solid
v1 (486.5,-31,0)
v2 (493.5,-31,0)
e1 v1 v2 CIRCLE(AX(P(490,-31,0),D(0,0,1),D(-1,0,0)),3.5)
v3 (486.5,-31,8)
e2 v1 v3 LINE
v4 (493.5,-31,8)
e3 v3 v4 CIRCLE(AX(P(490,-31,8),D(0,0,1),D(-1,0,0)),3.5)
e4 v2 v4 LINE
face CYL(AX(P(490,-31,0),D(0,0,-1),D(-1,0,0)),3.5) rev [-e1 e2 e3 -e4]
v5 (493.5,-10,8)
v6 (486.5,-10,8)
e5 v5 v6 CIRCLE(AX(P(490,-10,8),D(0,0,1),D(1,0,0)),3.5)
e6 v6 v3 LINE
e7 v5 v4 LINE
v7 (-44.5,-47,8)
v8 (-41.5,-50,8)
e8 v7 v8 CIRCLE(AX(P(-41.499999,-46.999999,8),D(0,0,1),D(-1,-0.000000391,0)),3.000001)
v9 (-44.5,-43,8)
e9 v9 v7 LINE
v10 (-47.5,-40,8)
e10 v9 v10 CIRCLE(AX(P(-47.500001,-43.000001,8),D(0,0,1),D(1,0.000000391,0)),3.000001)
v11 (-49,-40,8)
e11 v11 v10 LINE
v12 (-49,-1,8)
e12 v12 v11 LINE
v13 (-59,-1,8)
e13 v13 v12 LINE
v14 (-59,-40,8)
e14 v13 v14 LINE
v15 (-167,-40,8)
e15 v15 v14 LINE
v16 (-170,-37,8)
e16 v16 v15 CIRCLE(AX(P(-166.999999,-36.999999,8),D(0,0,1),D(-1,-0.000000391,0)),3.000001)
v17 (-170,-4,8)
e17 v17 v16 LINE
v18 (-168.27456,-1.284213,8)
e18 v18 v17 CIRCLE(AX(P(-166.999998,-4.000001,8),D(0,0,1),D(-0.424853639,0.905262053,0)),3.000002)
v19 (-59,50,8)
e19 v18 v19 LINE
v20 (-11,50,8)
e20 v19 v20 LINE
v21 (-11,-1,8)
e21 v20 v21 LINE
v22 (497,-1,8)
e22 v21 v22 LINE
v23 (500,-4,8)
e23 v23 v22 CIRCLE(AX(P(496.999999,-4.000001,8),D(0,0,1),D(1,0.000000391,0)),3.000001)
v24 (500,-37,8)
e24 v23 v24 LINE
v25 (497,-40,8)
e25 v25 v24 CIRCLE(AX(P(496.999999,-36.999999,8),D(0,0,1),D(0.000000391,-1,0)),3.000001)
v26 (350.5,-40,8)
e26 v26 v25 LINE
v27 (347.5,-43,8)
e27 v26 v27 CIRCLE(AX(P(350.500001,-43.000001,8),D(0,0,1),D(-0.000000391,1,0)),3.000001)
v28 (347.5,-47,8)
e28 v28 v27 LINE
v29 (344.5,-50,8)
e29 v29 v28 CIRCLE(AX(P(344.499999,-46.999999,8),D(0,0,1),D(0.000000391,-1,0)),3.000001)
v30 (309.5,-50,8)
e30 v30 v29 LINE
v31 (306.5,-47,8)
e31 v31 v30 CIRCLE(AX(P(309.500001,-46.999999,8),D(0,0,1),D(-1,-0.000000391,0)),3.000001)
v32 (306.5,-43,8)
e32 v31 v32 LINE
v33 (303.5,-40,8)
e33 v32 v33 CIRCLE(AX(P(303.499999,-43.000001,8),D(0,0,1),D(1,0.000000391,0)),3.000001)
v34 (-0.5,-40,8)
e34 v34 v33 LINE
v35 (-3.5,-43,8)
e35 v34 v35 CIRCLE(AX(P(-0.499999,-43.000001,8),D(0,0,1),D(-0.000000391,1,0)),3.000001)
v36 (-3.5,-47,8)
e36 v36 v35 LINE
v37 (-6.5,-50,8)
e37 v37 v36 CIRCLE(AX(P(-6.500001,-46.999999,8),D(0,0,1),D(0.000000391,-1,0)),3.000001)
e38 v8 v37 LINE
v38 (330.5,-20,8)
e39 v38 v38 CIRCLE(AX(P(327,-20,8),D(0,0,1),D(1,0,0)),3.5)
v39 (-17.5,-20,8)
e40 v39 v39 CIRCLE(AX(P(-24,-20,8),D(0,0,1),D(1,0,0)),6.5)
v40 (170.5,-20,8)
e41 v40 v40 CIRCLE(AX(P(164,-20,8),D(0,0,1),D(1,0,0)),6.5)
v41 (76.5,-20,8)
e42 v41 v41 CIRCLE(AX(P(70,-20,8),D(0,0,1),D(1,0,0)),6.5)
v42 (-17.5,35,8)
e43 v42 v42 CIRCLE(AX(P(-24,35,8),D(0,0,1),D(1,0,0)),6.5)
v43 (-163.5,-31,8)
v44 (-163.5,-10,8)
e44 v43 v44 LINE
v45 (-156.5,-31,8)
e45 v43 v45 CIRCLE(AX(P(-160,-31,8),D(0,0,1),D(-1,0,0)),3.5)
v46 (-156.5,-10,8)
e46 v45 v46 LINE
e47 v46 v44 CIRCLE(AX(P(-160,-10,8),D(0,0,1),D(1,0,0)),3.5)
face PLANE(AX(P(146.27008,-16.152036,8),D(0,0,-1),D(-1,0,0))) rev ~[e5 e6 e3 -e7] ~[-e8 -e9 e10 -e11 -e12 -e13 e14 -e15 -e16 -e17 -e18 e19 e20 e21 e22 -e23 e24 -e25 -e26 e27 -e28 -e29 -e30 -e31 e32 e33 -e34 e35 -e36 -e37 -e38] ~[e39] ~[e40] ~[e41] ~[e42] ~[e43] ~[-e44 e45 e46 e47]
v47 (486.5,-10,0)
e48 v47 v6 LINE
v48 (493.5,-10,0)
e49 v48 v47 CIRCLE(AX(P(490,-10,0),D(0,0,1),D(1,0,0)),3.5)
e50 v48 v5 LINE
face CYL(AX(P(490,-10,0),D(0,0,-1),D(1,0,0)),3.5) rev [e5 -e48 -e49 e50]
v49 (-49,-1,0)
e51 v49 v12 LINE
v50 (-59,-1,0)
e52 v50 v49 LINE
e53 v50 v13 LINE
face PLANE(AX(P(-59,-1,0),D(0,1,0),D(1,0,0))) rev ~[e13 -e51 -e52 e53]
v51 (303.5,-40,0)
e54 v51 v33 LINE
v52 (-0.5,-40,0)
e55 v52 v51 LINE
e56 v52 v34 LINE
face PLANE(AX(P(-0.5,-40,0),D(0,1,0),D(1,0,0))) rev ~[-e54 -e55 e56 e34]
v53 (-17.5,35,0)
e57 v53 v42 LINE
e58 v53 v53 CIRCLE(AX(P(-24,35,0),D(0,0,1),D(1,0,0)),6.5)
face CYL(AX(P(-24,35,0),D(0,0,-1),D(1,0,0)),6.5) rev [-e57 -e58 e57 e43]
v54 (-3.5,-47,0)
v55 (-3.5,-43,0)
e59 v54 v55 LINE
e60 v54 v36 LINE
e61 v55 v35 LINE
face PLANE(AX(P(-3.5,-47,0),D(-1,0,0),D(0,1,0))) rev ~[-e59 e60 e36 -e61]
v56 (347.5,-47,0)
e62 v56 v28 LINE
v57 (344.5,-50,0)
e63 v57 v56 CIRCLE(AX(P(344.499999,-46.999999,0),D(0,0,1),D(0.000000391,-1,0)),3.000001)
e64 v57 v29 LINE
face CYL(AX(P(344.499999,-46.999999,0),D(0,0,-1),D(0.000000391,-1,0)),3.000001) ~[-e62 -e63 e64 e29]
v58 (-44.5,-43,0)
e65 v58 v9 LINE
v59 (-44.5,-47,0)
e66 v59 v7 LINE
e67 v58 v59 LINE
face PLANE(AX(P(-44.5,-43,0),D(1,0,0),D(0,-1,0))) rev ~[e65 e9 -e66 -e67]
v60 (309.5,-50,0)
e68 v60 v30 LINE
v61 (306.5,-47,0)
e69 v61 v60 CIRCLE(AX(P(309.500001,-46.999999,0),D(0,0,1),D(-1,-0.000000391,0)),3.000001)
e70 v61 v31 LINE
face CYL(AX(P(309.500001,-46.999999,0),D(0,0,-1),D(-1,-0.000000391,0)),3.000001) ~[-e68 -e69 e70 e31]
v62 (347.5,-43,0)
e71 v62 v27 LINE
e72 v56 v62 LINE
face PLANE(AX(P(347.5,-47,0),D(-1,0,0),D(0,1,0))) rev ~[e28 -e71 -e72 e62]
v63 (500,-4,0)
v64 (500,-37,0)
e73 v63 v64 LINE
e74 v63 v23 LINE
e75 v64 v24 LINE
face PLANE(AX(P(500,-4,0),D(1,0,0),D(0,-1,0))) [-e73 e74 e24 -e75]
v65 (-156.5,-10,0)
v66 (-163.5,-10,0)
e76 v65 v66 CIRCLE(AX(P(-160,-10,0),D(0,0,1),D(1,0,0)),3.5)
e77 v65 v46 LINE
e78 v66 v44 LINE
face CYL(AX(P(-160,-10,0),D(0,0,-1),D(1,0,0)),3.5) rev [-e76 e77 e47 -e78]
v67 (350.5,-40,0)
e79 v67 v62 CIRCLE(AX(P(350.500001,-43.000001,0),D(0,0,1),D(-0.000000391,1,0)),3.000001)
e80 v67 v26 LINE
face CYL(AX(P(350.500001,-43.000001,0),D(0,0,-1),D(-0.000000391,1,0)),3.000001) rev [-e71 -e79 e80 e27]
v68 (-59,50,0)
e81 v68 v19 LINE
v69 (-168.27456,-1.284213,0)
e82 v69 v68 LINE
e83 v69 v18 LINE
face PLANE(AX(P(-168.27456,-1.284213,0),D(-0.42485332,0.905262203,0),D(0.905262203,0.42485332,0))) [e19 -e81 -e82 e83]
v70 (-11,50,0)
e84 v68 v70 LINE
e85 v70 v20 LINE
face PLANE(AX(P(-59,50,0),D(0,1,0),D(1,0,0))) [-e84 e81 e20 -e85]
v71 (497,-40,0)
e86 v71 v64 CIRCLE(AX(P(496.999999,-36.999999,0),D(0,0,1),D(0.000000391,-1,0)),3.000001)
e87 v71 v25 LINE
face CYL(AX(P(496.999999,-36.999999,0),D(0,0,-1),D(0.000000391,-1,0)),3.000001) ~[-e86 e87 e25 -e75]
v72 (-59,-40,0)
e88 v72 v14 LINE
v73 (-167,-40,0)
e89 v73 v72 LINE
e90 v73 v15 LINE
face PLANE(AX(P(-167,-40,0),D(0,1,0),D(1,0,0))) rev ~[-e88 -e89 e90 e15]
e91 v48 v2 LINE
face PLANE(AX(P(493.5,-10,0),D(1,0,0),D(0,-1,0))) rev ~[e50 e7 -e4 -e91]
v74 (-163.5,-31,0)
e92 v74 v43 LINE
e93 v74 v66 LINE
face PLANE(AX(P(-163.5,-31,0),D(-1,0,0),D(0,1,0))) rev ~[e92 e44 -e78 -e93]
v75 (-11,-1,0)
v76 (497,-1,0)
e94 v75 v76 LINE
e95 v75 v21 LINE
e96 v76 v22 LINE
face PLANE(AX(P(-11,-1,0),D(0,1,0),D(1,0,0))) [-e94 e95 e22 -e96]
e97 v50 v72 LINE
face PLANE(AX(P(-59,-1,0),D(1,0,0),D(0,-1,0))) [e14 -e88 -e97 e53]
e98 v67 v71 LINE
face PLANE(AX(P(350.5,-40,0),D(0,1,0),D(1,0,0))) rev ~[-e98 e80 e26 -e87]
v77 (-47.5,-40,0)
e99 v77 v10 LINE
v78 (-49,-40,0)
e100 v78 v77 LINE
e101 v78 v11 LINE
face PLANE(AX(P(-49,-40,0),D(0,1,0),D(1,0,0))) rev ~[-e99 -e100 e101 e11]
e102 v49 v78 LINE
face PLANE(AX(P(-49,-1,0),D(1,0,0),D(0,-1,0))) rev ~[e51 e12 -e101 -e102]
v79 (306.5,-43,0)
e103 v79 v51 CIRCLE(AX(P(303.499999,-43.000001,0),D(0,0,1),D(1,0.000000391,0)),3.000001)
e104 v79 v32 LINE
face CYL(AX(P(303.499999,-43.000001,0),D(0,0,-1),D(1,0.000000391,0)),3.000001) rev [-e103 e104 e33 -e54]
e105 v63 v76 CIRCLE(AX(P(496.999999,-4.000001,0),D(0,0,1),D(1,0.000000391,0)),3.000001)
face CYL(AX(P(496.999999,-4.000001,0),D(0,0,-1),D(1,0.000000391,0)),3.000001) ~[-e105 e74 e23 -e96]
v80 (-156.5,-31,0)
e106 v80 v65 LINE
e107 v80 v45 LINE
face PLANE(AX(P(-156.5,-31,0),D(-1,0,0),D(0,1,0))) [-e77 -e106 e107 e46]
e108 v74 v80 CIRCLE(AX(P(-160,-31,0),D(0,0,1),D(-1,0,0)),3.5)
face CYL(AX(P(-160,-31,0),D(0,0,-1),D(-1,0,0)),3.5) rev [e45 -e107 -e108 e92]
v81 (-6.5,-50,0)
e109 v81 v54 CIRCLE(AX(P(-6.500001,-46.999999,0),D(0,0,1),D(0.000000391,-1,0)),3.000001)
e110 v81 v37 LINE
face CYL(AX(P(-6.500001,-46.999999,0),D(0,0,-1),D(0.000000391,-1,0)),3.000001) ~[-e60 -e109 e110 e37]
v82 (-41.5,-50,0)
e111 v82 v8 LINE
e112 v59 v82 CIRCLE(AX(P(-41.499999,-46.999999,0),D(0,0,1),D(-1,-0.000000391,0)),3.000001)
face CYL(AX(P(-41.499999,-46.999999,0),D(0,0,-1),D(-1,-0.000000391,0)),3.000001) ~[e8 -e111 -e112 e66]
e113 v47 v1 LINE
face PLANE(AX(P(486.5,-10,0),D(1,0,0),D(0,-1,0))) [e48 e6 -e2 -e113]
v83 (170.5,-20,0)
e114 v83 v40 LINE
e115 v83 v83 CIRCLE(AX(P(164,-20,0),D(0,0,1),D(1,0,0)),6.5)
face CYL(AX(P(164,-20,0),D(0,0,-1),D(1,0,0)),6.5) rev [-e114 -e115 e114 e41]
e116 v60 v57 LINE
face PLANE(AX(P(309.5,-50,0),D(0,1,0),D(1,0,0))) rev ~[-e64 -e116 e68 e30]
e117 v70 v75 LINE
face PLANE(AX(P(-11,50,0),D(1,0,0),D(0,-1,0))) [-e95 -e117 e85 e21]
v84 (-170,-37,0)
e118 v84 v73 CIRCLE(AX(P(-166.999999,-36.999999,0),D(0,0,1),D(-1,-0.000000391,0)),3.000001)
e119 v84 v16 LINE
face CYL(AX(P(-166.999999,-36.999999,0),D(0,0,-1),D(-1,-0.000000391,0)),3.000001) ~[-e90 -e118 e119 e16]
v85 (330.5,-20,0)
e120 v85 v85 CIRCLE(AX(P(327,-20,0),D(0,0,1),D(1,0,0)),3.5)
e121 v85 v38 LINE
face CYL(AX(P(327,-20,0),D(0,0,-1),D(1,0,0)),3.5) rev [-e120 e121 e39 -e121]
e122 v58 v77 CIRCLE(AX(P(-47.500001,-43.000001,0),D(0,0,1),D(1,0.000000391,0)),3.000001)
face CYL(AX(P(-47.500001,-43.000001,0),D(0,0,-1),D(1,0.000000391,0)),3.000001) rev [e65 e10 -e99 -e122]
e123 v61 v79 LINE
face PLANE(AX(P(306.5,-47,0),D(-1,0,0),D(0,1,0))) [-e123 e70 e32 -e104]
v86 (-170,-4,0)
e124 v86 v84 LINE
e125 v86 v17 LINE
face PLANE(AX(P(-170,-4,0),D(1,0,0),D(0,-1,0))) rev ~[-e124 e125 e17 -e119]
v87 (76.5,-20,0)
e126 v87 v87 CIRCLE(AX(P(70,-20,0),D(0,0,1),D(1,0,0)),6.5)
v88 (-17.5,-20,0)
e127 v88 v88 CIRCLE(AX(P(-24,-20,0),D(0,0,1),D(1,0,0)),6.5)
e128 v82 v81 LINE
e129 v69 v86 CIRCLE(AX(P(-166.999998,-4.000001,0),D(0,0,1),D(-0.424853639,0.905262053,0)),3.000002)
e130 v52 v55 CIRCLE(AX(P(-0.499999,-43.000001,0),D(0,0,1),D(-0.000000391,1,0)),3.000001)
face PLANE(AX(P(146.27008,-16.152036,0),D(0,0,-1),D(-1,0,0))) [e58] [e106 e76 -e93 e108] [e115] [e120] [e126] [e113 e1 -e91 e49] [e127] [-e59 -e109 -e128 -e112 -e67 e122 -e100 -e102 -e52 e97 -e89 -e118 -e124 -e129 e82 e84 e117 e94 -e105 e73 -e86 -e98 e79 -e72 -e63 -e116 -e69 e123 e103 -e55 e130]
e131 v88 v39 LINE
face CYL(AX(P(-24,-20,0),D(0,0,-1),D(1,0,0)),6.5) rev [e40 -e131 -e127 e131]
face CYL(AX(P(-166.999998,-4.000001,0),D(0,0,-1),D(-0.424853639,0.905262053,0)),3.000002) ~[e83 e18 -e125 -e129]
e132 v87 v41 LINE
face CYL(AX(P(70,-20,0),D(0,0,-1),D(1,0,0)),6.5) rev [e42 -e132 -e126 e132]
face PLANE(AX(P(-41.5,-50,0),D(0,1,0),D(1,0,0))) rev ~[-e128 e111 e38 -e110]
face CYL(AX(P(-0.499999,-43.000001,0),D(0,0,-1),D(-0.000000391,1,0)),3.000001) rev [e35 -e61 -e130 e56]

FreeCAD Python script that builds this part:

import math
import FreeCAD as App
import Part
import Sketcher
from FreeCAD import Vector

doc = App.newDocument("Part")
body = doc.addObject("PartDesign::Body", "Body")

# Sketch on XY plane
sketch1 = body.newObject("Sketcher::SketchObject", "Sketch")
sketch1.AttachmentSupport = (doc.getObject("XY_Plane"), [""])
sketch1.MapMode = "FlatFace"
sketch1.addGeometry([
    Part.LineSegment(Vector(-11, -1, 0), Vector(-11, 50, 0)),  # 0
    Part.LineSegment(Vector(-11, 50, 0), Vector(-59, 50, 0)),  # 1
    Part.LineSegment(Vector(-59, 50, 0), Vector(-168.3, -1.3, 0)),  # 2
    Part.ArcOfCircle(Part.Circle(Vector(-167, -4, 0), Vector(0, 0, 1), 3), math.radians(115), math.radians(180)),  # 3
    Part.LineSegment(Vector(-170, -4, 0), Vector(-170, -37, 0)),  # 4
    Part.ArcOfCircle(Part.Circle(Vector(-167, -37, 0), Vector(0, 0, 1), 3), math.radians(-180), math.radians(-90)),  # 5
    Part.LineSegment(Vector(-167, -40, 0), Vector(-59, -40, 0)),  # 6
    Part.LineSegment(Vector(-59, -40, 0), Vector(-59, -1, 0)),  # 7
    Part.LineSegment(Vector(-59, -1, 0), Vector(-49, -1, 0)),  # 8
    Part.LineSegment(Vector(-49, -1, 0), Vector(-49, -40, 0)),  # 9
    Part.LineSegment(Vector(-49, -40, 0), Vector(-47.5, -40, 0)),  # 10
    Part.ArcOfCircle(Part.Circle(Vector(-47.5, -43, 0), Vector(0, 0, 1), 3), math.radians(0), math.radians(90)),  # 11
    Part.LineSegment(Vector(-44.5, -43, 0), Vector(-44.5, -47, 0)),  # 12
    Part.ArcOfCircle(Part.Circle(Vector(-41.5, -47, 0), Vector(0, 0, 1), 3), math.radians(-180), math.radians(-90)),  # 13
    Part.LineSegment(Vector(-41.5, -50, 0), Vector(-6.5, -50, 0)),  # 14
    Part.ArcOfCircle(Part.Circle(Vector(-6.5, -47, 0), Vector(0, 0, 1), 3), math.radians(-90), math.radians(0)),  # 15
    Part.LineSegment(Vector(-3.5, -47, 0), Vector(-3.5, -43, 0)),  # 16
    Part.ArcOfCircle(Part.Circle(Vector(-0.5, -43, 0), Vector(0, 0, 1), 3), math.radians(90), math.radians(180)),  # 17
    Part.LineSegment(Vector(-0.5, -40, 0), Vector(303.5, -40, 0)),  # 18
    Part.ArcOfCircle(Part.Circle(Vector(303.5, -43, 0), Vector(0, 0, 1), 3), math.radians(0), math.radians(90)),  # 19
    Part.LineSegment(Vector(306.5, -43, 0), Vector(306.5, -47, 0)),  # 20
    Part.ArcOfCircle(Part.Circle(Vector(309.5, -47, 0), Vector(0, 0, 1), 3), math.radians(-180), math.radians(-90)),  # 21
    Part.LineSegment(Vector(309.5, -50, 0), Vector(344.5, -50, 0)),  # 22
    Part.ArcOfCircle(Part.Circle(Vector(344.5, -47, 0), Vector(0, 0, 1), 3), math.radians(-90), math.radians(0)),  # 23
    Part.LineSegment(Vector(347.5, -47, 0), Vector(347.5, -43, 0)),  # 24
    Part.ArcOfCircle(Part.Circle(Vector(350.5, -43, 0), Vector(0, 0, 1), 3), math.radians(90), math.radians(180)),  # 25
    Part.LineSegment(Vector(350.5, -40, 0), Vector(497, -40, 0)),  # 26
    Part.ArcOfCircle(Part.Circle(Vector(497, -37, 0), Vector(0, 0, 1), 3), math.radians(-90), math.radians(0)),  # 27
    Part.LineSegment(Vector(500, -37, 0), Vector(500, -4, 0)),  # 28
    Part.ArcOfCircle(Part.Circle(Vector(497, -4, 0), Vector(0, 0, 1), 3), math.radians(0), math.radians(90)),  # 29
    Part.LineSegment(Vector(497, -1, 0), Vector(-11, -1, 0)),  # 30
    Part.LineSegment(Vector(493.5, -10, 0), Vector(493.5, -31, 0)),  # 31
    Part.ArcOfCircle(Part.Circle(Vector(490, -31, 0), Vector(0, 0, 1), 3.5), math.radians(180), math.radians(360)),  # 32
    Part.LineSegment(Vector(486.5, -31, 0), Vector(486.5, -10, 0)),  # 33
    Part.ArcOfCircle(Part.Circle(Vector(490, -10, 0), Vector(0, 0, 1), 3.5), math.radians(0), math.radians(180)),  # 34
    Part.Circle(Vector(327, -20, 0), Vector(0, 0, 1), 3.5),  # 35
    Part.Circle(Vector(164, -20, 0), Vector(0, 0, 1), 6.5),  # 36
    Part.Circle(Vector(70, -20, 0), Vector(0, 0, 1), 6.5),  # 37
    Part.Circle(Vector(-24, -20, 0), Vector(0, 0, 1), 6.5),  # 38
    Part.LineSegment(Vector(-163.5, -31, 0), Vector(-163.5, -10, 0)),  # 39
    Part.ArcOfCircle(Part.Circle(Vector(-160, -10, 0), Vector(0, 0, 1), 3.5), math.radians(0), math.radians(180)),  # 40
    Part.LineSegment(Vector(-156.5, -10, 0), Vector(-156.5, -31, 0)),  # 41
    Part.ArcOfCircle(Part.Circle(Vector(-160, -31, 0), Vector(0, 0, 1), 3.5), math.radians(180), math.radians(360)),  # 42
    Part.Circle(Vector(-24, 35, 0), Vector(0, 0, 1), 6.5),  # 43
], False)
sketch1.addConstraint([
    Sketcher.Constraint("Coincident", 0, 2, 1, 1),
    Sketcher.Constraint("Coincident", 1, 2, 2, 1),
    Sketcher.Constraint("Tangent", 2, 2, 3, 1),
    Sketcher.Constraint("Tangent", 3, 2, 4, 1),
    Sketcher.Constraint("Tangent", 4, 2, 5, 1),
    Sketcher.Constraint("Tangent", 5, 2, 6, 1),
    Sketcher.Constraint("Coincident", 6, 2, 7, 1),
    Sketcher.Constraint("Coincident", 7, 2, 8, 1),
    Sketcher.Constraint("Coincident", 8, 2, 9, 1),
    Sketcher.Constraint("Coincident", 9, 2, 10, 1),
    Sketcher.Constraint("Tangent", 10, 2, 11, 2),
    Sketcher.Constraint("Tangent", 11, 1, 12, 1),
    Sketcher.Constraint("Tangent", 12, 2, 13, 1),
    Sketcher.Constraint("Tangent", 13, 2, 14, 1),
    Sketcher.Constraint("Tangent", 14, 2, 15, 1),
    Sketcher.Constraint("Tangent", 15, 2, 16, 1),
    Sketcher.Constraint("Tangent", 16, 2, 17, 2),
    Sketcher.Constraint("Tangent", 17, 1, 18, 1),
    Sketcher.Constraint("Tangent", 18, 2, 19, 2),
    Sketcher.Constraint("Tangent", 19, 1, 20, 1),
    Sketcher.Constraint("Tangent", 20, 2, 21, 1),
    Sketcher.Constraint("Tangent", 21, 2, 22, 1),
    Sketcher.Constraint("Tangent", 22, 2, 23, 1),
    Sketcher.Constraint("Tangent", 23, 2, 24, 1),
    Sketcher.Constraint("Tangent", 24, 2, 25, 2),
    Sketcher.Constraint("Tangent", 25, 1, 26, 1),
    Sketcher.Constraint("Tangent", 26, 2, 27, 1),
    Sketcher.Constraint("Tangent", 27, 2, 28, 1),
    Sketcher.Constraint("Tangent", 28, 2, 29, 1),
    Sketcher.Constraint("Tangent", 29, 2, 30, 1),
    Sketcher.Constraint("Coincident", 30, 2, 0, 1),
    Sketcher.Constraint("Tangent", 31, 2, 32, 2),
    Sketcher.Constraint("Tangent", 32, 1, 33, 1),
    Sketcher.Constraint("Tangent", 33, 2, 34, 2),
    Sketcher.Constraint("Tangent", 34, 1, 31, 1),
    Sketcher.Constraint("Tangent", 39, 2, 40, 2),
    Sketcher.Constraint("Tangent", 40, 1, 41, 1),
    Sketcher.Constraint("Tangent", 41, 2, 42, 2),
    Sketcher.Constraint("Tangent", 42, 1, 39, 1),
    Sketcher.Constraint("Vertical", 0),
    Sketcher.Constraint("Horizontal", 1),
    Sketcher.Constraint("Vertical", 4),
    Sketcher.Constraint("Horizontal", 6),
    Sketcher.Constraint("Vertical", 7),
    Sketcher.Constraint("Horizontal", 8),
    Sketcher.Constraint("Vertical", 9),
    Sketcher.Constraint("Horizontal", 10),
    Sketcher.Constraint("Vertical", 12),
    Sketcher.Constraint("Horizontal", 14),
    Sketcher.Constraint("Vertical", 16),
    Sketcher.Constraint("Horizontal", 18),
    Sketcher.Constraint("Vertical", 20),
    Sketcher.Constraint("Horizontal", 22),
    Sketcher.Constraint("Vertical", 24),
    Sketcher.Constraint("Horizontal", 26),
    Sketcher.Constraint("Vertical", 28),
    Sketcher.Constraint("Horizontal", 30),
    Sketcher.Constraint("Vertical", 31),
    Sketcher.Constraint("Vertical", 33),
    Sketcher.Constraint("Vertical", 39),
    Sketcher.Constraint("Vertical", 41),
    Sketcher.Constraint("Equal", 3, 5),
    Sketcher.Constraint("Equal", 5, 11),
    Sketcher.Constraint("Equal", 11, 13),
    Sketcher.Constraint("Equal", 13, 15),
    Sketcher.Constraint("Equal", 15, 17),
    Sketcher.Constraint("Equal", 17, 19),
    Sketcher.Constraint("Equal", 19, 21),
    Sketcher.Constraint("Equal", 21, 23),
    Sketcher.Constraint("Equal", 23, 25),
    Sketcher.Constraint("Equal", 25, 27),
    Sketcher.Constraint("Equal", 27, 29),
    Sketcher.Constraint("Equal", 34, 35),
    Sketcher.Constraint("Equal", 36, 37),
    Sketcher.Constraint("Equal", 37, 38),
    Sketcher.Constraint("Equal", 35, 40),
    Sketcher.Constraint("Equal", 38, 43),
    Sketcher.Constraint("Horizontal", 11, 3, 17, 3),
    Sketcher.Constraint("Horizontal", 15, 3, 21, 3),
    Sketcher.Constraint("Horizontal", 19, 3, 25, 3),
    Sketcher.Constraint("Horizontal", 5, 3, 27, 3),
    Sketcher.Constraint("Horizontal", 3, 3, 29, 3),
    Sketcher.Constraint("Horizontal", 35, 3, 36, 3),
    Sketcher.Constraint("Horizontal", 36, 3, 37, 3),
    Sketcher.Constraint("Horizontal", 37, 3, 38, 3),
    Sketcher.Constraint("Horizontal", 34, 3, 40, 3),
    Sketcher.Constraint("Horizontal", 32, 3, 42, 3),
    Sketcher.Constraint("Horizontal", 8, 2, 29, 2),
    Sketcher.Constraint("Vertical", 38, 3, 43, 3),
    Sketcher.Constraint("Vertical", 1, 2, 6, 2),
    Sketcher.Constraint("Equal", 14, 22),
    Sketcher.Constraint("Diameter", 35, 7.0),
    Sketcher.Constraint("Diameter", 36, 13.0),
    Sketcher.Constraint("Radius", 3, 3.000002),
    Sketcher.Constraint("DistanceX", 1, 2, 1, 1, 48.0),
    Sketcher.Constraint("DistanceX", 6, 1, 6, 2, 108.0),
    Sketcher.Constraint("DistanceX", 8, 1, 8, 2, 10.0),
    Sketcher.Constraint("DistanceX", 14, 1, 14, 2, 35.0),
    Sketcher.Constraint("DistanceX", 18, 1, 18, 2, 304.0),
    Sketcher.Constraint("DistanceX", 30, 2, 30, 1, 508.0),
    Sketcher.Constraint("DistanceY", 0, 1, 0, 2, 51.0),
    Sketcher.Constraint("DistanceY", 4, 2, 4, 1, 33.0),
    Sketcher.Constraint("DistanceY", 12, 2, 12, 1, 4.0),
    Sketcher.Constraint("DistanceY", 31, 2, 31, 1, 21.0),
    Sketcher.Constraint("DistanceX", 10, 1, 10, 2, 1.5),
    Sketcher.Constraint("DistanceX", 3, 3, -1, 1, 166.999998),
    Sketcher.Constraint("DistanceY", 3, 3, -1, 1, 4.000001),
    Sketcher.Constraint("DistanceX", -1, 1, 32, 3, 490.0),
    Sketcher.Constraint("DistanceY", 32, 3, -1, 1, 31.0),
    Sketcher.Constraint("DistanceX", -1, 1, 35, 3, 327.0),
    Sketcher.Constraint("DistanceY", 35, 3, -1, 1, 20.0),
    Sketcher.Constraint("DistanceX", -1, 1, 36, 3, 164.0),
    Sketcher.Constraint("DistanceX", -1, 1, 37, 3, 70.0),
    Sketcher.Constraint("DistanceX", 38, 3, -1, 1, 24.0),
    Sketcher.Constraint("DistanceX", 40, 3, -1, 1, 160.0),
    Sketcher.Constraint("DistanceY", -1, 1, 43, 3, 35.0),
])
pad1 = body.newObject("PartDesign::Pad", "Pad")
pad1.Profile = sketch1
pad1.Length = 8

doc.recompute()
